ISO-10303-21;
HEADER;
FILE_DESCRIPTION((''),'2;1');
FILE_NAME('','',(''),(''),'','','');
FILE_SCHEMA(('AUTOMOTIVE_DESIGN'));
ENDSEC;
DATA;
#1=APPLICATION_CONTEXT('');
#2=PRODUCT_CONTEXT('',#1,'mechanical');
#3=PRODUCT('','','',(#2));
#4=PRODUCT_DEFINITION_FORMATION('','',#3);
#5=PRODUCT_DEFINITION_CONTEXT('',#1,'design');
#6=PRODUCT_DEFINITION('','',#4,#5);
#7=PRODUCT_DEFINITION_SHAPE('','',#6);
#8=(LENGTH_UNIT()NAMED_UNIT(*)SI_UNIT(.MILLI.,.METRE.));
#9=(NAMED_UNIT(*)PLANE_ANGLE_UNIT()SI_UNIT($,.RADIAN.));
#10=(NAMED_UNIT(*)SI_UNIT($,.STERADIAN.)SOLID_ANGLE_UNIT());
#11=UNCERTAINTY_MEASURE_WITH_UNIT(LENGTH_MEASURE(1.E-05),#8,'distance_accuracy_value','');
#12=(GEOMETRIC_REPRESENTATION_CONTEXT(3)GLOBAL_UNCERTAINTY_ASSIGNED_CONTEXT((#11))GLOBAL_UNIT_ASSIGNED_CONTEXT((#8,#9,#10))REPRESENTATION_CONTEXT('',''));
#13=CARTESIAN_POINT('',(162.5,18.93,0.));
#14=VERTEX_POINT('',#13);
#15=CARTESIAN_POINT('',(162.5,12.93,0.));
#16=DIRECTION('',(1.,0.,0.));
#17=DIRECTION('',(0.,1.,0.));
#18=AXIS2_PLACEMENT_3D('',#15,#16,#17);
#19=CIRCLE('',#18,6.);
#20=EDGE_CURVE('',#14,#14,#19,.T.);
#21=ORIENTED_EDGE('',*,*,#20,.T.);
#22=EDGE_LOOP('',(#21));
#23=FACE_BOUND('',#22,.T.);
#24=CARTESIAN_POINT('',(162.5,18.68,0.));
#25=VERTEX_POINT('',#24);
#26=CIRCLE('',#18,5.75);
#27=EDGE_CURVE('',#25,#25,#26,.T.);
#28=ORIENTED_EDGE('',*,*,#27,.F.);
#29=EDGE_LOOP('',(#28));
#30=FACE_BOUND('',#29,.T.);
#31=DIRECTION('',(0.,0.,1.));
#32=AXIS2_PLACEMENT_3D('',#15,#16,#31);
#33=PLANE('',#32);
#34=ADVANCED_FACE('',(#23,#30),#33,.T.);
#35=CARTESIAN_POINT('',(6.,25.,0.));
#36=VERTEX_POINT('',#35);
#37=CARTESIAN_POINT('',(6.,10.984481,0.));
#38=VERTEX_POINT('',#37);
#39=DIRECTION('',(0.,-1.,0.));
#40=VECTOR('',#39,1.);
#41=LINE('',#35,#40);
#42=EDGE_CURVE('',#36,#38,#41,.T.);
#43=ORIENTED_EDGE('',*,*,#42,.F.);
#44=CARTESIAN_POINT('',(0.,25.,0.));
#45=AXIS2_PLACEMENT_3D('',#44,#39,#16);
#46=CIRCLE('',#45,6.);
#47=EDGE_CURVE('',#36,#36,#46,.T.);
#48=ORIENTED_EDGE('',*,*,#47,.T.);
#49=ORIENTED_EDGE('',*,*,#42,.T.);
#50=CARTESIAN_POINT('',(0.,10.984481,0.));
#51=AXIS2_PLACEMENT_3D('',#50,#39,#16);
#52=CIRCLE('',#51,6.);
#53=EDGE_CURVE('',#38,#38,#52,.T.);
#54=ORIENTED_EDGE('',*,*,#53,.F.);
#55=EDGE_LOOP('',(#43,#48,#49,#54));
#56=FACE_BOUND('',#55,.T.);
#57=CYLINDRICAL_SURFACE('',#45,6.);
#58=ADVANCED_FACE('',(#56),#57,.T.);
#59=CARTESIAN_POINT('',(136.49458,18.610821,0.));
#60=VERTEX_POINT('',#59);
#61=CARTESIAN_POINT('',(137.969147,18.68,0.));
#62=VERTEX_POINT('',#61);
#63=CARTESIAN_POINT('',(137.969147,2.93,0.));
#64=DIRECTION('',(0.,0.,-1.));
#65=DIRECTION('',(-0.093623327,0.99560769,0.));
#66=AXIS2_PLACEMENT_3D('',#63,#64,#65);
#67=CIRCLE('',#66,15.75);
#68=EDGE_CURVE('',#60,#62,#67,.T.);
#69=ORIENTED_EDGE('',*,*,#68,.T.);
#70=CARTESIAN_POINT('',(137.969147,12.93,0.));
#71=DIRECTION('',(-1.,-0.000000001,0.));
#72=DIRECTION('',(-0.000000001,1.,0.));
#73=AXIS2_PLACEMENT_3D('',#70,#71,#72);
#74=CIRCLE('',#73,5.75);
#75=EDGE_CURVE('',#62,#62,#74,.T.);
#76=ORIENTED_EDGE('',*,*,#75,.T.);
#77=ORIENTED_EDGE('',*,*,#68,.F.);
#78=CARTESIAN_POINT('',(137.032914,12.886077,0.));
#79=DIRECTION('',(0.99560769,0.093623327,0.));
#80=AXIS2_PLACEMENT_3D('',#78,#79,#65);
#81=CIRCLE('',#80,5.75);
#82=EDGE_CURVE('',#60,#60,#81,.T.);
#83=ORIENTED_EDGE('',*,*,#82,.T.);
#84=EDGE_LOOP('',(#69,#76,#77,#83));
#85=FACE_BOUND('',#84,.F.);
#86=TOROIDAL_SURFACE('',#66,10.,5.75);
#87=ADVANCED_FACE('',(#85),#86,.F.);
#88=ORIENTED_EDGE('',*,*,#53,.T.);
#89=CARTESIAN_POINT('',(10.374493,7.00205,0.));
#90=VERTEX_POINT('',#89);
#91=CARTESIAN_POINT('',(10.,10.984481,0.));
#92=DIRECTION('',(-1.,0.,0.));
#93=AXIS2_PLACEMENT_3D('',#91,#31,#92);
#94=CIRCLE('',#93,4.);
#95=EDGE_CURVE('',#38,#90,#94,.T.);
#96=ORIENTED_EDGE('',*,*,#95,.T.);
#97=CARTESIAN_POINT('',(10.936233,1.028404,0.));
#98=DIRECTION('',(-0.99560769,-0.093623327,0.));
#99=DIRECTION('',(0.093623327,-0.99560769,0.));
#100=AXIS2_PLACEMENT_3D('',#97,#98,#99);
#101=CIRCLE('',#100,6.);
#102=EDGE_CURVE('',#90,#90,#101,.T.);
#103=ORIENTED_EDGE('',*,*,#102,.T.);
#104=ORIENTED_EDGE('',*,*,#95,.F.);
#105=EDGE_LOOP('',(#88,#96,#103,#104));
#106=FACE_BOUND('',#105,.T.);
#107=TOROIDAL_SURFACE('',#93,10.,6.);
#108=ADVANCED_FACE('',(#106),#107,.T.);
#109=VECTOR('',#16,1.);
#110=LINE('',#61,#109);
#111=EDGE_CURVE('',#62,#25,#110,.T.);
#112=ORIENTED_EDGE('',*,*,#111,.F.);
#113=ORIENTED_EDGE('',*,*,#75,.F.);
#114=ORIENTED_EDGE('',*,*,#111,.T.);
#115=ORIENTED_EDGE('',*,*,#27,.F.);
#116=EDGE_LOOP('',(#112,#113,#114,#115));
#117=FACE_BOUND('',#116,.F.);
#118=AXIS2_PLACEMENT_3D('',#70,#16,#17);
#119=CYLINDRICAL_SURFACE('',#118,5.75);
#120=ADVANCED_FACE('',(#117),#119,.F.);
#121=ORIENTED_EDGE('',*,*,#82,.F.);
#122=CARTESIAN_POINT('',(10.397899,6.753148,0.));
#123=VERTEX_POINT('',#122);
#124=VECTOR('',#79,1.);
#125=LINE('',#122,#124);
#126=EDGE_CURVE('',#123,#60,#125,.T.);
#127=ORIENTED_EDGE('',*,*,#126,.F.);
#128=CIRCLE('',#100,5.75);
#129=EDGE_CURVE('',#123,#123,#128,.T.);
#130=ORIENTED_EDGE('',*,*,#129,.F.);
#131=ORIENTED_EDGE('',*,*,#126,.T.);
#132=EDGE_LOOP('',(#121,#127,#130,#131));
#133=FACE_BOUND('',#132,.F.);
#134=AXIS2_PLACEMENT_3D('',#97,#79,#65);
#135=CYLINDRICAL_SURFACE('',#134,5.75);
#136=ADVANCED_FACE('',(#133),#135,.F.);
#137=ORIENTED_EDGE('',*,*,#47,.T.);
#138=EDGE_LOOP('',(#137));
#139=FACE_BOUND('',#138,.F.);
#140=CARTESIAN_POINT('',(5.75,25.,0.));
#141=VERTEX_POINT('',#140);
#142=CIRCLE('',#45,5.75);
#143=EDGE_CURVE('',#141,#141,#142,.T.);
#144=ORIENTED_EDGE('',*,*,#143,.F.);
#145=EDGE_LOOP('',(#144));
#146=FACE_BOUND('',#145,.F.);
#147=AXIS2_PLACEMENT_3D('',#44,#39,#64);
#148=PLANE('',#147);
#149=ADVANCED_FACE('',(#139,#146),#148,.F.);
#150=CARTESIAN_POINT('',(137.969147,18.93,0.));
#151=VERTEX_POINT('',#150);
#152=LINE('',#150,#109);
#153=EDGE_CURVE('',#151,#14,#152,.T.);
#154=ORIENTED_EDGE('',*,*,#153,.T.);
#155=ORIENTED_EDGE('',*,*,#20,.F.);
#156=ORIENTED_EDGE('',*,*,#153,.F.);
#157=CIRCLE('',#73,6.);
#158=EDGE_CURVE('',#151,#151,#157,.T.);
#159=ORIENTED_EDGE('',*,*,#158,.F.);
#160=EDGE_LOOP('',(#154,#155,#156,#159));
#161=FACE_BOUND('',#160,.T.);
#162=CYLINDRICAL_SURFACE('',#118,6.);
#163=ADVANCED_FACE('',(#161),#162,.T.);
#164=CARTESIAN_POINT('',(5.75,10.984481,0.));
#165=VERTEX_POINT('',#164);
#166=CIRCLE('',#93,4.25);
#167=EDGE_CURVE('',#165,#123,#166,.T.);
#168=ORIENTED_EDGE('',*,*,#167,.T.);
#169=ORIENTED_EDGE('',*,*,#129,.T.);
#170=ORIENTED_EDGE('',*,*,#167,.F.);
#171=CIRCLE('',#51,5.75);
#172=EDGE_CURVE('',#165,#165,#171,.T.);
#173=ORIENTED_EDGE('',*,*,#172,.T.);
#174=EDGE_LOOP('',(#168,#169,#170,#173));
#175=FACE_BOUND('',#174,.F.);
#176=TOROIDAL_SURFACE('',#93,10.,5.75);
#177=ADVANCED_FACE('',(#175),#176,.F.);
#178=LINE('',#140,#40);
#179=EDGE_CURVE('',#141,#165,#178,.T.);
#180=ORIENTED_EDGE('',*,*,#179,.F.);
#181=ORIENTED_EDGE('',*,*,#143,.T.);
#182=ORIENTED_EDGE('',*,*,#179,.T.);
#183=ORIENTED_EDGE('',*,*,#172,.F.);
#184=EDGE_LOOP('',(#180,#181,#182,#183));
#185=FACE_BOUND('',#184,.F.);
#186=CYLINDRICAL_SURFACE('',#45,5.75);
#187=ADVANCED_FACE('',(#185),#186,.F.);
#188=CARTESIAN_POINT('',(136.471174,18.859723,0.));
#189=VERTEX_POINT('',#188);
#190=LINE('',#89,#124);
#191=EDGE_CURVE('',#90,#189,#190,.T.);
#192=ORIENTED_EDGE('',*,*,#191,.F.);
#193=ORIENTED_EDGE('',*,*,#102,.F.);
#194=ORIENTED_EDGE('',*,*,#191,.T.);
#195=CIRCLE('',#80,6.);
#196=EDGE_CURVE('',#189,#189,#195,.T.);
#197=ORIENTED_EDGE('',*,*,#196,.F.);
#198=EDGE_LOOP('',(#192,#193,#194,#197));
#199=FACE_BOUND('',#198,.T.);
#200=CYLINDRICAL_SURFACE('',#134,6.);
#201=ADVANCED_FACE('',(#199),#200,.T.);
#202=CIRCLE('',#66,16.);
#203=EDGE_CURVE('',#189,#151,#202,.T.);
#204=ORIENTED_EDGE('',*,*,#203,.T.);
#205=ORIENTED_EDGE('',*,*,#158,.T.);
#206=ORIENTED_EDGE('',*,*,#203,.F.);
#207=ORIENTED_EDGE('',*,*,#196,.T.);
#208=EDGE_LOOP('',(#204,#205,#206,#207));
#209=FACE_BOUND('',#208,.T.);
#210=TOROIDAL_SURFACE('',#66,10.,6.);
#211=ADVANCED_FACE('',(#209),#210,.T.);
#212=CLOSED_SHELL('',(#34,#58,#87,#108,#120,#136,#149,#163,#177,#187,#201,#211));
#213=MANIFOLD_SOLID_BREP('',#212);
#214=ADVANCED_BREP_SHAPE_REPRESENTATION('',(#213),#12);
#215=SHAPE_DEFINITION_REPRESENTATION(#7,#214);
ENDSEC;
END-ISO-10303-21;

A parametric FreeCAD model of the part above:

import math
import FreeCAD as App
import Part
import Sketcher

V = App.Vector

doc = App.newDocument("Part")
body = doc.addObject("PartDesign::Body", "Body")

# Sketch on XZ plane
sketch1 = body.newObject("Sketcher::SketchObject", "Sketch")
sketch1.AttachmentSupport = (doc.getObject("XZ_Plane"), [""])
sketch1.MapMode = "FlatFace"
sketch1.AttachmentOffset = App.Placement(V(0, 0, -25), App.Rotation())
sketch1.addGeometry([
    Part.Circle(V(0, 0, 0), V(0, 0, 1), 6),
    Part.Circle(V(0, 0, 0), V(0, 0, 1), 6),
], False)
sketch1.addConstraint([
    Sketcher.Constraint("Coincident", 0, 3, -1, 1),
    Sketcher.Constraint("Coincident", 1, 3, -1, 1),
    Sketcher.Constraint("Diameter", 0, 12.0),
    Sketcher.Constraint("Diameter", 1, 11.5),
])

# Sketch on XY plane
sketch2 = body.newObject("Sketcher::SketchObject", "Sketch001")
sketch2.AttachmentSupport = (doc.getObject("XY_Plane"), [""])
sketch2.MapMode = "FlatFace"
sketch2.addGeometry([
    Part.LineSegment(V(-6, 25, 0), V(-6, 10.98, 0)),  # 0
    Part.ArcOfCircle(Part.Circle(V(10, 10.98, 0), V(0, 0, 1), 16), math.radians(180), math.radians(275)),  # 1
    Part.LineSegment(V(11.5, -4.95, 0), V(137.59, 6.91, 0)),  # 2
    Part.ArcOfCircle(Part.Circle(V(137.97, 2.93, 0), V(0, 0, 1), 4), math.radians(90), math.radians(95.37)),  # 3
    Part.LineSegment(V(137.97, 6.93, 0), V(162.5, 6.93, 0)),  # 4
], False)
sketch2.addConstraint([
    Sketcher.Constraint("Tangent", 0, 2, 1, 1),
    Sketcher.Constraint("Tangent", 1, 2, 2, 1),
    Sketcher.Constraint("Tangent", 2, 2, 3, 2),
    Sketcher.Constraint("Tangent", 3, 1, 4, 1),
    Sketcher.Constraint("Vertical", 0),
    Sketcher.Constraint("Horizontal", 4),
    Sketcher.Constraint("Radius", 1, 16.0),
    Sketcher.Constraint("Radius", 3, 4.0),
    Sketcher.Constraint("DistanceX", -1, 1, 1, 3, 10.0),
    Sketcher.Constraint("DistanceY", -1, 1, 0, 1, 25.0),
    Sketcher.Constraint("DistanceX", -1, 1, 4, 2, 162.5),
    Sketcher.Constraint("DistanceY", -1, 1, 3, 3, 2.93),
    Sketcher.Constraint("DistanceY", 0, 2, 0, 1, 14.015519),
    Sketcher.Constraint("Distance", 2, 126.65298),
])
doc.recompute()

additivepipe = body.newObject("PartDesign::AdditivePipe", "AdditivePipe")
additivepipe.Profile = sketch1
additivepipe.Spine = (sketch2, ["Edge1", "Edge2", "Edge3", "Edge4", "Edge5"])

doc.recompute()
